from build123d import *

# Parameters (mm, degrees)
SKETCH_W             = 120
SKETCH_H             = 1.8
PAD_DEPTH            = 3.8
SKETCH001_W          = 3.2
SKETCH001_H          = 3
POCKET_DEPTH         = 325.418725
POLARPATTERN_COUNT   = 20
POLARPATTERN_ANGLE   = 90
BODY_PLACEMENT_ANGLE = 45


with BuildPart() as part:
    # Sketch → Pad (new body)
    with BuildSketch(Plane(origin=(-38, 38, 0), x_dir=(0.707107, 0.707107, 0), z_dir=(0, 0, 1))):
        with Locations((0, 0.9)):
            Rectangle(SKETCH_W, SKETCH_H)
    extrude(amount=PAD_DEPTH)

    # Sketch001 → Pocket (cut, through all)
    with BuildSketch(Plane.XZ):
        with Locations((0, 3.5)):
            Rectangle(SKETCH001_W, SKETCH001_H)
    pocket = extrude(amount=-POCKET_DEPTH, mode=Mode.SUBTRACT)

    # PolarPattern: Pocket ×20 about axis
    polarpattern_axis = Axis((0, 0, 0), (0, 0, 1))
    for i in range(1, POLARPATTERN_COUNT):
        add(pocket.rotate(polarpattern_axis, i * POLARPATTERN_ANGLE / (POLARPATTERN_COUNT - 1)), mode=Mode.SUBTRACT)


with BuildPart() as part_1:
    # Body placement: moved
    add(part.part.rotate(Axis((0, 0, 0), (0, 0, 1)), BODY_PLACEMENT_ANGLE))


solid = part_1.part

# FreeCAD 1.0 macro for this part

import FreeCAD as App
import Part
import Sketcher
from FreeCAD import Vector
Q = App.Units.Quantity

doc = App.newDocument("Part")
params = doc.addObject("Spreadsheet::Sheet", "Params")
for row, (alias, value) in enumerate([
    ("sketch1_length", "120 mm"),
    ("sketch1_length2", "1.8 mm"),
    ("pad1_length", "3.8 mm"),
    ("sketch2_height", "3 mm"),
    ("sketch2_width", "3.2 mm"),
], start=1):
    params.set(f"A{row}", alias)
    params.set(f"B{row}", "=" + value)
    params.setAlias(f"B{row}", alias)

body = doc.addObject("PartDesign::Body", "Body")

sketch1 = body.newObject("Sketcher::SketchObject", "Sketch")
sketch1.AttachmentSupport = (doc.getObject("XY_Plane"), [""])
sketch1.MapMode = "FlatFace"
sketch1.addGeometry(Part.LineSegment(Vector(-81.7, -3.2, 0), Vector(-80.4, -4.4, 0)), False)
sketch1.addGeometry(Part.LineSegment(Vector(-80.4, -4.4, 0), Vector(4.4, 80.4, 0)), False)
sketch1.addGeometry(Part.LineSegment(Vector(4.4, 80.4, 0), Vector(3.2, 81.7, 0)), False)
sketch1.addGeometry(Part.LineSegment(Vector(3.2, 81.7, 0), Vector(-81.7, -3.2, 0)), False)
sketch1.addConstraint(Sketcher.Constraint("Coincident", 0, 2, 1, 1))
sketch1.addConstraint(Sketcher.Constraint("Coincident", 1, 2, 2, 1))
sketch1.addConstraint(Sketcher.Constraint("Coincident", 2, 2, 3, 1))
sketch1.addConstraint(Sketcher.Constraint("Coincident", 3, 2, 0, 1))
sketch1.addConstraint(Sketcher.Constraint("Perpendicular", 0, 1))
sketch1.addConstraint(Sketcher.Constraint("Perpendicular", 1, 2))
sketch1.addConstraint(Sketcher.Constraint("Perpendicular", 2, 3))
sketch1.addConstraint(Sketcher.Constraint("Angle", 0, Q("-45 deg")))
sketch1.addConstraint(Sketcher.Constraint("Distance", 1, 120.0))
sketch1.addConstraint(Sketcher.Constraint("Distance", 0, 1.8))
sketch1.addConstraint(Sketcher.Constraint("DistanceY", -1, 1, 2, 2, 81.699199))
sketch1.addConstraint(Sketcher.Constraint("DistanceX", 3, 2, -1, 1, 81.699199))
sketch1.setExpression("Constraints[8]", "Params.sketch1_length")
sketch1.setExpression("Constraints[9]", "Params.sketch1_length2")
pad1 = body.newObject("PartDesign::Pad", "Pad")
pad1.Profile = sketch1
pad1.setExpression("Length", "Params.pad1_length")

sketch2 = body.newObject("Sketcher::SketchObject", "Sketch001")
sketch2.AttachmentSupport = (doc.getObject("XZ_Plane"), [""])
sketch2.MapMode = "FlatFace"
sketch2.addGeometry(Part.LineSegment(Vector(-1.6, 5, 0), Vector(-1.6, 2, 0)), False)
sketch2.addGeometry(Part.LineSegment(Vector(-1.6, 2, 0), Vector(1.6, 2, 0)), False)
sketch2.addGeometry(Part.LineSegment(Vector(1.6, 2, 0), Vector(1.6, 5, 0)), False)
sketch2.addGeometry(Part.LineSegment(Vector(1.6, 5, 0), Vector(-1.6, 5, 0)), False)
sketch2.addConstraint(Sketcher.Constraint("Coincident", 0, 2, 1, 1))
sketch2.addConstraint(Sketcher.Constraint("Coincident", 1, 2, 2, 1))
sketch2.addConstraint(Sketcher.Constraint("Coincident", 2, 2, 3, 1))
sketch2.addConstraint(Sketcher.Constraint("Coincident", 3, 2, 0, 1))
sketch2.addConstraint(Sketcher.Constraint("Vertical", 0))
sketch2.addConstraint(Sketcher.Constraint("Horizontal", 1))
sketch2.addConstraint(Sketcher.Constraint("Vertical", 2))
sketch2.addConstraint(Sketcher.Constraint("Horizontal", 3))
sketch2.addConstraint(Sketcher.Constraint("DistanceY", 0, 2, 0, 1, 3.0))
sketch2.addConstraint(Sketcher.Constraint("DistanceX", 1, 1, 1, 2, 3.2))
sketch2.addConstraint(Sketcher.Constraint("DistanceY", -1, 1, 0, 2, 2.0))
sketch2.addConstraint(Sketcher.Constraint("DistanceX", 0, 2, -1, 1, 1.6))
sketch2.setExpression("Constraints[8]", "Params.sketch2_height")
sketch2.setExpression("Constraints[9]", "Params.sketch2_width")
pocket1 = body.newObject("PartDesign::Pocket", "Pocket")
pocket1.Profile = sketch2
pocket1.Type = "ThroughAll"
doc.recompute()

polarpattern = body.newObject("PartDesign::PolarPattern", "PolarPattern")
polarpattern.Originals = [pocket1]
polarpattern.Axis = (doc.getObject("Z_Axis"), [""])
polarpattern.Angle = 90
polarpattern.Occurrences = 20
body.Tip = polarpattern
body2 = doc.addObject("PartDesign::Body", "Body001")
doc.recompute()

body.Placement = App.Placement(Vector(0, 0, 0), App.Rotation(Vector(0, 0, 1), 45))
boolean = body2.newObject("PartDesign::Boolean", "Boolean")
boolean.Type = "Fuse"
boolean.addObjects([body])

doc.recompute()
